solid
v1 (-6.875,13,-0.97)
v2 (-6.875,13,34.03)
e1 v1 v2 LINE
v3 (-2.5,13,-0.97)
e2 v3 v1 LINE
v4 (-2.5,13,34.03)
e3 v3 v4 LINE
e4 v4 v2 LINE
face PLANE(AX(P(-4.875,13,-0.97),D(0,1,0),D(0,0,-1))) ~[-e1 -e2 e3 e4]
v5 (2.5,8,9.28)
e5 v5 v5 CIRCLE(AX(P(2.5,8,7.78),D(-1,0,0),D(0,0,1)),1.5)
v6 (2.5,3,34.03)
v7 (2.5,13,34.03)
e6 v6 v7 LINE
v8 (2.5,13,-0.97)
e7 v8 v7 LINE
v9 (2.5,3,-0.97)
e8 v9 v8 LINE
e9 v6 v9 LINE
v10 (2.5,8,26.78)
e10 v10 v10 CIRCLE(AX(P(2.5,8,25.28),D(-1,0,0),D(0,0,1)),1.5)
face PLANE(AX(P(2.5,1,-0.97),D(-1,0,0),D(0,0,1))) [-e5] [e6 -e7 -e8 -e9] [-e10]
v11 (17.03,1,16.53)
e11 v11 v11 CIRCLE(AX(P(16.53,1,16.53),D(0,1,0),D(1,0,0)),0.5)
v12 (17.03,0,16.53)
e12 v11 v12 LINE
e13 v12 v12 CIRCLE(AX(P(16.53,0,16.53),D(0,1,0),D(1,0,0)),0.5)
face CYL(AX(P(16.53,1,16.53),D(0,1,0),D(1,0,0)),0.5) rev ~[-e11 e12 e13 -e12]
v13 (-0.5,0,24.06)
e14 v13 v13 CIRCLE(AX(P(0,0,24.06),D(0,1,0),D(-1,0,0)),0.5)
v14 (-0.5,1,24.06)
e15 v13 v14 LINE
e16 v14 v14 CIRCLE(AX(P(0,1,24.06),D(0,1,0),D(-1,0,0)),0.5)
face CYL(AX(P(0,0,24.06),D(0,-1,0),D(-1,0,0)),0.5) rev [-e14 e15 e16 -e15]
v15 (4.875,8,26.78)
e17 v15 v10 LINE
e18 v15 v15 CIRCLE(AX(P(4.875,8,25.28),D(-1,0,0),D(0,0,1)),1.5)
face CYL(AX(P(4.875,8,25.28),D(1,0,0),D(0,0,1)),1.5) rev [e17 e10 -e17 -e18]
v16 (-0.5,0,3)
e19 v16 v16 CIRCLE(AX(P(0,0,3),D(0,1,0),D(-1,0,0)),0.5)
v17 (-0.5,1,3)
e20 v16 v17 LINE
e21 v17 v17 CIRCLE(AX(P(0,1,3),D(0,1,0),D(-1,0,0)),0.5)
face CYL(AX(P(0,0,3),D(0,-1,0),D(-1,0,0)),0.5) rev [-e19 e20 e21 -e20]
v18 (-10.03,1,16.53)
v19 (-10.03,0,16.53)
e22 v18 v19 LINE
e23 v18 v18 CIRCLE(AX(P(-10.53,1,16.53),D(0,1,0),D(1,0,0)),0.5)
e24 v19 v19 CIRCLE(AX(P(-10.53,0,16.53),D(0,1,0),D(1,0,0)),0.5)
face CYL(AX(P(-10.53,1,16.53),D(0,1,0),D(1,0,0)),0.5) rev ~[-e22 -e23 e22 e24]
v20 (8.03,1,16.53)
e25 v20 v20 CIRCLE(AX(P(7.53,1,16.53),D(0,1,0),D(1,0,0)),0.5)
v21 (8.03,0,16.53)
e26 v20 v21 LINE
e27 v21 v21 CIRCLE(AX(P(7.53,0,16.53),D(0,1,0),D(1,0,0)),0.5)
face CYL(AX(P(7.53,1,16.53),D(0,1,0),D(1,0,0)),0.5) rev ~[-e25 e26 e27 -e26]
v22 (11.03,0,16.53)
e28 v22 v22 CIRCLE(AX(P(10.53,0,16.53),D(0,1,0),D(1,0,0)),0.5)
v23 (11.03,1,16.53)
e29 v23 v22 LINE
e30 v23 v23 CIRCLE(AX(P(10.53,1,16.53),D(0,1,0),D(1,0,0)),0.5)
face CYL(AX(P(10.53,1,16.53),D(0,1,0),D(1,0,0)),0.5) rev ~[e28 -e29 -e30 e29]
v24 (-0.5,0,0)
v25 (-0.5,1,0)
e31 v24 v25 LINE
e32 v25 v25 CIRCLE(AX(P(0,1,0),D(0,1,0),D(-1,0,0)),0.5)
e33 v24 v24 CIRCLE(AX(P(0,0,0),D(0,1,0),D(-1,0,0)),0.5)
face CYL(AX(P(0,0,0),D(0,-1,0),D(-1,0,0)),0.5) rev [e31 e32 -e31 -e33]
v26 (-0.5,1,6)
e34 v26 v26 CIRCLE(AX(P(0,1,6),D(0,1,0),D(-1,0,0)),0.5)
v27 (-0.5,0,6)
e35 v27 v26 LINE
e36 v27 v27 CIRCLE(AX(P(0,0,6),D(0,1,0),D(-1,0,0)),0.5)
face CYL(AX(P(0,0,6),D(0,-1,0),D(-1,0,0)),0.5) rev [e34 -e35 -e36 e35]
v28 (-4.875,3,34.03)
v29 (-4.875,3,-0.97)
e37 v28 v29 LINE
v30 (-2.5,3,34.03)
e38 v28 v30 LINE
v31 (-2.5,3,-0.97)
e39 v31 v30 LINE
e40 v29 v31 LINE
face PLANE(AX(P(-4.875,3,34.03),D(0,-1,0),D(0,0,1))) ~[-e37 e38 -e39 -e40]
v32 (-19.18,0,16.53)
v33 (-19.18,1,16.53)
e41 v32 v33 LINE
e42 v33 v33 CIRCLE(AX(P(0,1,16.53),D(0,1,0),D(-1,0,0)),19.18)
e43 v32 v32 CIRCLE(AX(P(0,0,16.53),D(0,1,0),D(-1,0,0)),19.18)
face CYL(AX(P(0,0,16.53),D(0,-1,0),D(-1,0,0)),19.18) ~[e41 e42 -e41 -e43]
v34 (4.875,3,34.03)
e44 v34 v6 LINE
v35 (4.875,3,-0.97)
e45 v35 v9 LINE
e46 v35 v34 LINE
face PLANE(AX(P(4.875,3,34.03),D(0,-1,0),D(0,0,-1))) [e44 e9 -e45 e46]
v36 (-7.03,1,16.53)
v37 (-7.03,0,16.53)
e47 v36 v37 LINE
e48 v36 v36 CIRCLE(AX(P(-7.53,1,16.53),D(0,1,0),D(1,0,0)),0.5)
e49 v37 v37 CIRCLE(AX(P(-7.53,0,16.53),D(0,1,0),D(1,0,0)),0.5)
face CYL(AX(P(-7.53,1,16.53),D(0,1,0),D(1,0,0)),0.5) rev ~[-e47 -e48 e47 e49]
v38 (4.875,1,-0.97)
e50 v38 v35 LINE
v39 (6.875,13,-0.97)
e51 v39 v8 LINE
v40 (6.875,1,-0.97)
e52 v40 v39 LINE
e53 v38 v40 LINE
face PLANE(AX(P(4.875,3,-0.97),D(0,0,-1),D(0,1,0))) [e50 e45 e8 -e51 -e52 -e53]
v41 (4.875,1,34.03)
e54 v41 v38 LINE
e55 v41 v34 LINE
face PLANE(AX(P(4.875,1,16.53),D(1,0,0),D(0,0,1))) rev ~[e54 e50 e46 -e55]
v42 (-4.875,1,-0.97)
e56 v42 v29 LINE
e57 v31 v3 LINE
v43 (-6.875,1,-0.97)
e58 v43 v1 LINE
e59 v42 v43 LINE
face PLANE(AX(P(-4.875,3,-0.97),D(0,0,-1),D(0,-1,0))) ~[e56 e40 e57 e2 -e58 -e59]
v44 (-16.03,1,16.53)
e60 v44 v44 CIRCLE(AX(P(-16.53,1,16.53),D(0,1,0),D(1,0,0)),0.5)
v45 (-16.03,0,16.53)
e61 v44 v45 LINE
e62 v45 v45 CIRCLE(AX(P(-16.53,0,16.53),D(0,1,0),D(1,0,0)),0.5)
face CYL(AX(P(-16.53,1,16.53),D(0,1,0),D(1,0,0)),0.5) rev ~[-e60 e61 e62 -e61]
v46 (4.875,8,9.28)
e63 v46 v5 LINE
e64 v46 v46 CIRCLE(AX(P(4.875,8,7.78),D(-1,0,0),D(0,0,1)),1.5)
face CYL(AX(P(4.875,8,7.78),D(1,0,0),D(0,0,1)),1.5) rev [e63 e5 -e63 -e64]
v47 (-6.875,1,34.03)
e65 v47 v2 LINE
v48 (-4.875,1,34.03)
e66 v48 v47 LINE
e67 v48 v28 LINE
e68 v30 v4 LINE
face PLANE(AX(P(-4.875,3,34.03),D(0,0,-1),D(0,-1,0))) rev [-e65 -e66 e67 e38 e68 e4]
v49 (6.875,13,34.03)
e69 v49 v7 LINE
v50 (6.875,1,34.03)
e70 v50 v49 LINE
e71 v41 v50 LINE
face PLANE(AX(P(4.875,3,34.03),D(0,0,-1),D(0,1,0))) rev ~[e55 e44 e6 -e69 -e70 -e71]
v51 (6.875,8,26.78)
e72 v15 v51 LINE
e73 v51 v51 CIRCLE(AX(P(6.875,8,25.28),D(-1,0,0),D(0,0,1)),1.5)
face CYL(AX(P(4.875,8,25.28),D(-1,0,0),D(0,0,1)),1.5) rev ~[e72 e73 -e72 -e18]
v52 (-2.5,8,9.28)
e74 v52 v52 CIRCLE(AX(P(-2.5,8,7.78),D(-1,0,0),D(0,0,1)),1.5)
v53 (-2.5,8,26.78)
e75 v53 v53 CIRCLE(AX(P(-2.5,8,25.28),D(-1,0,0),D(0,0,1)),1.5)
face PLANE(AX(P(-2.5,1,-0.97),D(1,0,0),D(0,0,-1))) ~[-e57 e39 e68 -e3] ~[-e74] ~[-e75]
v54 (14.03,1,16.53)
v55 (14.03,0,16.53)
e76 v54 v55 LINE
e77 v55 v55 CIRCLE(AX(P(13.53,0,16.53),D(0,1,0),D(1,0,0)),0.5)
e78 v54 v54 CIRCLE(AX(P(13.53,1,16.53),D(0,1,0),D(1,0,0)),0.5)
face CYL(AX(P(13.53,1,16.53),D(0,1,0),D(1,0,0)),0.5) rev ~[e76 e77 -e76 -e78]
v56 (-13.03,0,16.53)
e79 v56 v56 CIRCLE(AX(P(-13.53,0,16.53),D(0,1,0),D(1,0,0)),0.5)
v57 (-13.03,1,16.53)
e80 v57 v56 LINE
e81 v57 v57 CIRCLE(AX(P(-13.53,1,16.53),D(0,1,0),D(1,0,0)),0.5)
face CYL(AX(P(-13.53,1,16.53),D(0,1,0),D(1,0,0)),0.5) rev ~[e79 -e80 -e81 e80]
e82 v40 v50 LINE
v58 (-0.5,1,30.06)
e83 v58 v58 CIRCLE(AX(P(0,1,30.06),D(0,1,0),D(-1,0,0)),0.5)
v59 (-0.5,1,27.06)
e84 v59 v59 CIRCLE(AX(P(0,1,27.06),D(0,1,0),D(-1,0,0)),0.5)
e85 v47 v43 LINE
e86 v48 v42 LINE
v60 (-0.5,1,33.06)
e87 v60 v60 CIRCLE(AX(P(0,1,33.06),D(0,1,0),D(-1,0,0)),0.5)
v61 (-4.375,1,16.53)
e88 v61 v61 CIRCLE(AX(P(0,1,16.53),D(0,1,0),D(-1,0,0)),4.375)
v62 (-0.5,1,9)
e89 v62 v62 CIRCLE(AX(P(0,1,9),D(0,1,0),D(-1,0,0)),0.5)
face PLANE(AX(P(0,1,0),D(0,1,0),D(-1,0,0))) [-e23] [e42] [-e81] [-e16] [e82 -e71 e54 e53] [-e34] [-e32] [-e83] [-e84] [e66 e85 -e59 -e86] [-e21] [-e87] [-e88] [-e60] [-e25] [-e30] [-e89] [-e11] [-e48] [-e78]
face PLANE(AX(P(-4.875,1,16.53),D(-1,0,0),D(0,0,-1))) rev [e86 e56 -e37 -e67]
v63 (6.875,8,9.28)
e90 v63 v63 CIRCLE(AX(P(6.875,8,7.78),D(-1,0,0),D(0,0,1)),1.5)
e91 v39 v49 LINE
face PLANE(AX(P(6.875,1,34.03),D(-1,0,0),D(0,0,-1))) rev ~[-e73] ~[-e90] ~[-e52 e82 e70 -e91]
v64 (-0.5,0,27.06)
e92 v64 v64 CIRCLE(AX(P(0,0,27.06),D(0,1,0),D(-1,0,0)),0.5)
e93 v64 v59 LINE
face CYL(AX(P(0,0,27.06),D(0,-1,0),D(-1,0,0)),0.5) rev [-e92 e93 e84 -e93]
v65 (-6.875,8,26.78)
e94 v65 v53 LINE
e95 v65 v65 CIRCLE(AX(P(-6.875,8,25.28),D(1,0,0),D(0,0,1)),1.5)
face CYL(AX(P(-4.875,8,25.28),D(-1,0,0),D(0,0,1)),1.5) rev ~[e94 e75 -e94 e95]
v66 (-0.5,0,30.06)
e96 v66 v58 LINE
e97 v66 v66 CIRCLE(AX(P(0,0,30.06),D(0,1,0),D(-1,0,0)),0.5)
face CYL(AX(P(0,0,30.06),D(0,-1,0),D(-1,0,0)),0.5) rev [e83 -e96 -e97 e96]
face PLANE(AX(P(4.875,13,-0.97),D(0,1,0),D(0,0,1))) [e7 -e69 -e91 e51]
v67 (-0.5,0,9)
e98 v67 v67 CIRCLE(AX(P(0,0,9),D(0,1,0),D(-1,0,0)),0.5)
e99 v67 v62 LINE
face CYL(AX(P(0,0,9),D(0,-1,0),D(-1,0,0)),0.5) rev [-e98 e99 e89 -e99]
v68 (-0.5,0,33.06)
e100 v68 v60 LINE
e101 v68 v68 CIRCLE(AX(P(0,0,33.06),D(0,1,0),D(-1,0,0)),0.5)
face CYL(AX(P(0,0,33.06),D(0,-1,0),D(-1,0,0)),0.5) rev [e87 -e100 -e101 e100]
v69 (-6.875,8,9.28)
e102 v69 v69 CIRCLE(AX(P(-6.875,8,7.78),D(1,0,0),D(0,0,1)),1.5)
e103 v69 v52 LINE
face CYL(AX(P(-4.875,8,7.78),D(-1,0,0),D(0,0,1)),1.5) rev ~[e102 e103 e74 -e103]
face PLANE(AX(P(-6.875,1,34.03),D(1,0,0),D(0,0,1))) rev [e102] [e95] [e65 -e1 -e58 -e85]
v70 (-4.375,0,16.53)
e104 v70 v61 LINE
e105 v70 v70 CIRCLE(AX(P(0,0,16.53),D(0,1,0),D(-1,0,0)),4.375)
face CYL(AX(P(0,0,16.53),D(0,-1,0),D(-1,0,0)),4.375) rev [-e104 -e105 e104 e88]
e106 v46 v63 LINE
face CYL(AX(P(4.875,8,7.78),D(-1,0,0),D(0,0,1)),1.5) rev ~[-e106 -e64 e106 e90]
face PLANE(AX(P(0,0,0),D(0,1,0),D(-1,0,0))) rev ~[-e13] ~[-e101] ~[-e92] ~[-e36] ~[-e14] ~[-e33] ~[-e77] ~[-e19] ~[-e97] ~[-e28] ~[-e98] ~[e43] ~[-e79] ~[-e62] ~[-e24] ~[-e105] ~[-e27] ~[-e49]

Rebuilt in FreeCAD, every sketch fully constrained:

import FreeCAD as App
import Part
import Sketcher

V = App.Vector
Q = App.Units.Quantity


def add_polygon(sketch, points):
    """Adds a closed chain of lines whose ends are joined by coincident constraints."""
    first, n = sketch.GeometryCount, len(points)
    for a, b in zip(points, points[1:] + points[:1]):
        sketch.addGeometry(Part.LineSegment(App.Vector(*a, 0), App.Vector(*b, 0)), False)
    for i in range(n):
        sketch.addConstraint(Sketcher.Constraint("Coincident", first + i, 2, first + (i + 1) % n, 1))

doc = App.newDocument("Part")
body = doc.addObject("PartDesign::Body", "Body")

# Sketch on XZ plane
sketch1 = body.newObject("Sketcher::SketchObject", "Sketch")
sketch1.AttachmentSupport = (doc.getObject("XZ_Plane"), [""])
sketch1.MapMode = "FlatFace"
sketch1.addGeometry(Part.Circle(V(0, 16.5, 0), V(0, 0, 1), 19.2), False)
sketch1.addGeometry(Part.Circle(V(0, 0, 0), V(0, 0, 1), 0.5), False)
sketch1.addGeometry(Part.Circle(V(0, 3, 0), V(0, 0, 1), 0.5), False)
sketch1.addGeometry(Part.Circle(V(0, 6, 0), V(0, 0, 1), 0.5), False)
sketch1.addGeometry(Part.Circle(V(0, 9, 0), V(0, 0, 1), 0.5), False)
sketch1.addGeometry(Part.Circle(V(0, 16.5, 0), V(0, 0, 1), 4.4), False)
sketch1.addGeometry(Part.Circle(V(0, 24.1, 0), V(0, 0, 1), 0.5), False)
sketch1.addGeometry(Part.Circle(V(0, 27.1, 0), V(0, 0, 1), 0.5), False)
sketch1.addGeometry(Part.Circle(V(0, 30.1, 0), V(0, 0, 1), 0.5), False)
sketch1.addGeometry(Part.Circle(V(0, 33.1, 0), V(0, 0, 1), 0.5), False)
sketch1.addConstraint(Sketcher.Constraint("Coincident", 1, 3, -1, 1))
sketch1.addConstraint(Sketcher.Constraint("Coincident", 5, 3, 0, 3))
sketch1.addConstraint(Sketcher.Constraint("Equal", 1, 2))
sketch1.addConstraint(Sketcher.Constraint("Equal", 2, 3))
sketch1.addConstraint(Sketcher.Constraint("Equal", 3, 4))
sketch1.addConstraint(Sketcher.Constraint("Equal", 4, 6))
sketch1.addConstraint(Sketcher.Constraint("Equal", 6, 7))
sketch1.addConstraint(Sketcher.Constraint("Equal", 7, 8))
sketch1.addConstraint(Sketcher.Constraint("Equal", 8, 9))
sketch1.addConstraint(Sketcher.Constraint("PointOnObject", 0, 3, -2))
sketch1.addConstraint(Sketcher.Constraint("PointOnObject", 2, 3, -2))
sketch1.addConstraint(Sketcher.Constraint("PointOnObject", 3, 3, -2))
sketch1.addConstraint(Sketcher.Constraint("PointOnObject", 4, 3, -2))
sketch1.addConstraint(Sketcher.Constraint("PointOnObject", 6, 3, -2))
sketch1.addConstraint(Sketcher.Constraint("PointOnObject", 7, 3, -2))
sketch1.addConstraint(Sketcher.Constraint("PointOnObject", 8, 3, -2))
sketch1.addConstraint(Sketcher.Constraint("PointOnObject", 9, 3, -2))
sketch1.addConstraint(Sketcher.Constraint("Diameter", 1, Q("1 mm")))
sketch1.addConstraint(Sketcher.Constraint("Diameter", 0, Q("38.36 mm")))
sketch1.addConstraint(Sketcher.Constraint("Diameter", 5, Q("8.75 mm")))
sketch1.addConstraint(Sketcher.Constraint("DistanceY", -1, 1, 2, 3, Q("3 mm")))
sketch1.addConstraint(Sketcher.Constraint("DistanceY", -1, 1, 3, 3, Q("6 mm")))
sketch1.addConstraint(Sketcher.Constraint("DistanceY", -1, 1, 4, 3, Q("9 mm")))
sketch1.addConstraint(Sketcher.Constraint("DistanceY", 6, 3, 7, 3, Q("3 mm")))
sketch1.addConstraint(Sketcher.Constraint("DistanceY", 7, 3, 8, 3, Q("3 mm")))
sketch1.addConstraint(Sketcher.Constraint("DistanceY", 8, 3, 9, 3, Q("3 mm")))
sketch1.addConstraint(Sketcher.Constraint("DistanceY", -1, 1, 0, 3, Q("16.53 mm")))
sketch1.addConstraint(Sketcher.Constraint("DistanceY", -1, 1, 6, 3, Q("24.06 mm")))
pad1 = body.newObject("PartDesign::Pad", "Pad")
pad1.Profile = sketch1
pad1.Length = 1
pad1.Reversed = True

# Sketch on XZ plane
sketch2 = body.newObject("Sketcher::SketchObject", "Sketch001")
sketch2.AttachmentSupport = (doc.getObject("XZ_Plane"), [""])
sketch2.MapMode = "FlatFace"
sketch2.AttachmentOffset = App.Placement(V(0, 0, -1), App.Rotation())
add_polygon(sketch2, [(4.9, -1), (4.9, 34), (6.9, 34), (6.9, -1)])  # lines 0-3
sketch2.addConstraint(Sketcher.Constraint("Vertical", 0))
sketch2.addConstraint(Sketcher.Constraint("Horizontal", 1))
sketch2.addConstraint(Sketcher.Constraint("Vertical", 2))
sketch2.addConstraint(Sketcher.Constraint("Horizontal", 3))
sketch2.addConstraint(Sketcher.Constraint("DistanceX", 1, 1, 1, 2, Q("2 mm")))
sketch2.addConstraint(Sketcher.Constraint("DistanceY", 0, 1, 0, 2, Q("35 mm")))
sketch2.addConstraint(Sketcher.Constraint("DistanceY", -1, 1, 0, 2, Q("34.03 mm")))
sketch2.addConstraint(Sketcher.Constraint("DistanceX", -1, 1, 0, 2, Q("4.875 mm")))
pad2 = body.newObject("PartDesign::Pad", "Pad001")
pad2.Profile = sketch2
pad2.Length = 12
pad2.Reversed = True

# Sketch on YZ plane
sketch3 = body.newObject("Sketcher::SketchObject", "Sketch002")
sketch3.AttachmentSupport = (doc.getObject("YZ_Plane"), [""])
sketch3.MapMode = "FlatFace"
sketch3.AttachmentOffset = App.Placement(V(0, 0, 4.875), App.Rotation())
sketch3.addGeometry(Part.Circle(V(8, 7.8, 0), V(0, 0, 1), 1.5), False)
sketch3.addGeometry(Part.Circle(V(8, 25.3, 0), V(0, 0, 1), 1.5), False)
sketch3.addConstraint(Sketcher.Constraint("Equal", 0, 1))
sketch3.addConstraint(Sketcher.Constraint("Vertical", 0, 3, 1, 3))
sketch3.addConstraint(Sketcher.Constraint("Diameter", 0, Q("3 mm")))
sketch3.addConstraint(Sketcher.Constraint("DistanceX", -1, 1, 0, 3, Q("8 mm")))
sketch3.addConstraint(Sketcher.Constraint("DistanceY", 0, 3, 1, 3, Q("17.5 mm")))
sketch3.addConstraint(Sketcher.Constraint("DistanceY", -1, 1, 0, 3, Q("7.78 mm")))
pocket1 = body.newObject("PartDesign::Pocket", "Pocket")
pocket1.Profile = sketch3
pocket1.Length = 12
pocket1.Reversed = True

# Sketch on YZ plane
sketch4 = body.newObject("Sketcher::SketchObject", "Sketch003")
sketch4.AttachmentSupport = (doc.getObject("YZ_Plane"), [""])
sketch4.MapMode = "FlatFace"
sketch4.AttachmentOffset = App.Placement(V(0, 0, 4.875), App.Rotation())
add_polygon(sketch4, [(3, -1), (3, 34), (13, 34), (13, -1)])  # lines 0-3
sketch4.addGeometry(Part.Circle(V(8, 7.8, 0), V(0, 0, 1), 1.5), False)  # 4
sketch4.addGeometry(Part.Circle(V(8, 25.3, 0), V(0, 0, 1), 1.5), False)  # 5
sketch4.addConstraint(Sketcher.Constraint("Vertical", 0))
sketch4.addConstraint(Sketcher.Constraint("Horizontal", 1))
sketch4.addConstraint(Sketcher.Constraint("Vertical", 2))
sketch4.addConstraint(Sketcher.Constraint("Horizontal", 3))
sketch4.addConstraint(Sketcher.Constraint("Equal", 4, 5))
sketch4.addConstraint(Sketcher.Constraint("Vertical", 4, 3, 5, 3))
sketch4.addConstraint(Sketcher.Constraint("Diameter", 4, Q("3 mm")))
sketch4.addConstraint(Sketcher.Constraint("DistanceX", -1, 1, 0, 2, Q("3 mm")))
sketch4.addConstraint(Sketcher.Constraint("DistanceX", 1, 1, 1, 2, Q("10 mm")))
sketch4.addConstraint(Sketcher.Constraint("DistanceY", 0, 1, 0, 2, Q("35 mm")))
sketch4.addConstraint(Sketcher.Constraint("DistanceX", -1, 1, 4, 3, Q("8 mm")))
sketch4.addConstraint(Sketcher.Constraint("DistanceY", 4, 3, 5, 3, Q("17.5 mm")))
sketch4.addConstraint(Sketcher.Constraint("DistanceY", -1, 1, 4, 3, Q("7.78 mm")))
sketch4.addConstraint(Sketcher.Constraint("DistanceY", -1, 1, 0, 2, Q("34.03 mm")))
pad3 = body.newObject("PartDesign::Pad", "Pad002")
pad3.Profile = sketch4
pad3.Length = 2.375
pad3.Reversed = True
doc.recompute()

mirrored = body.newObject("PartDesign::Mirrored", "Mirrored")
mirrored.Originals = [pad3, pad2, pocket1]
mirrored.MirrorPlane = (doc.getObject("YZ_Plane"), [""])
body.Tip = mirrored

# Sketch on XZ plane
sketch5 = body.newObject("Sketcher::SketchObject", "Sketch004")
sketch5.AttachmentSupport = (doc.getObject("XZ_Plane"), [""])
sketch5.MapMode = "FlatFace"
sketch5.AttachmentOffset = App.Placement(V(0, 0, -1), App.Rotation())
sketch5.addGeometry(Part.Circle(V(7.5, 16.5, 0), V(0, 0, 1), 0.5), False)
sketch5.addGeometry(Part.Circle(V(10.5, 16.5, 0), V(0, 0, 1), 0.5), False)
sketch5.addGeometry(Part.Circle(V(13.5, 16.5, 0), V(0, 0, 1), 0.5), False)
sketch5.addGeometry(Part.Circle(V(16.5, 16.5, 0), V(0, 0, 1), 0.5), False)
sketch5.addGeometry(Part.Circle(V(-7.5, 16.5, 0), V(0, 0, 1), 0.5), False)
sketch5.addGeometry(Part.Circle(V(-10.5, 16.5, 0), V(0, 0, 1), 0.5), False)
sketch5.addGeometry(Part.Circle(V(-13.5, 16.5, 0), V(0, 0, 1), 0.5), False)
sketch5.addGeometry(Part.Circle(V(-16.5, 16.5, 0), V(0, 0, 1), 0.5), False)
sketch5.addConstraint(Sketcher.Constraint("Equal", 0, 1))
sketch5.addConstraint(Sketcher.Constraint("Equal", 1, 2))
sketch5.addConstraint(Sketcher.Constraint("Equal", 2, 3))
sketch5.addConstraint(Sketcher.Constraint("Equal", 3, 4))
sketch5.addConstraint(Sketcher.Constraint("Equal", 4, 5))
sketch5.addConstraint(Sketcher.Constraint("Equal", 5, 6))
sketch5.addConstraint(Sketcher.Constraint("Equal", 6, 7))
sketch5.addConstraint(Sketcher.Constraint("Symmetric", 0, 3, 4, 3, -2))
sketch5.addConstraint(Sketcher.Constraint("Symmetric", 1, 3, 5, 3, -2))
sketch5.addConstraint(Sketcher.Constraint("Symmetric", 2, 3, 6, 3, -2))
sketch5.addConstraint(Sketcher.Constraint("Symmetric", 3, 3, 7, 3, -2))
sketch5.addConstraint(Sketcher.Constraint("Horizontal", 0, 3, 1, 3))
sketch5.addConstraint(Sketcher.Constraint("Horizontal", 1, 3, 2, 3))
sketch5.addConstraint(Sketcher.Constraint("Horizontal", 2, 3, 3, 3))
sketch5.addConstraint(Sketcher.Constraint("Diameter", 0, Q("1 mm")))
sketch5.addConstraint(Sketcher.Constraint("DistanceX", 0, 3, 1, 3, Q("3 mm")))
sketch5.addConstraint(Sketcher.Constraint("DistanceX", 1, 3, 2, 3, Q("3 mm")))
sketch5.addConstraint(Sketcher.Constraint("DistanceX", 2, 3, 3, 3, Q("3 mm")))
sketch5.addConstraint(Sketcher.Constraint("DistanceX", -1, 1, 0, 3, Q("7.53 mm")))
sketch5.addConstraint(Sketcher.Constraint("DistanceY", -1, 1, 0, 3, Q("16.53 mm")))
pocket2 = body.newObject("PartDesign::Pocket", "Pocket001")
pocket2.Profile = sketch5
pocket2.Length = 10
pocket2.Midplane = True

doc.recompute()
